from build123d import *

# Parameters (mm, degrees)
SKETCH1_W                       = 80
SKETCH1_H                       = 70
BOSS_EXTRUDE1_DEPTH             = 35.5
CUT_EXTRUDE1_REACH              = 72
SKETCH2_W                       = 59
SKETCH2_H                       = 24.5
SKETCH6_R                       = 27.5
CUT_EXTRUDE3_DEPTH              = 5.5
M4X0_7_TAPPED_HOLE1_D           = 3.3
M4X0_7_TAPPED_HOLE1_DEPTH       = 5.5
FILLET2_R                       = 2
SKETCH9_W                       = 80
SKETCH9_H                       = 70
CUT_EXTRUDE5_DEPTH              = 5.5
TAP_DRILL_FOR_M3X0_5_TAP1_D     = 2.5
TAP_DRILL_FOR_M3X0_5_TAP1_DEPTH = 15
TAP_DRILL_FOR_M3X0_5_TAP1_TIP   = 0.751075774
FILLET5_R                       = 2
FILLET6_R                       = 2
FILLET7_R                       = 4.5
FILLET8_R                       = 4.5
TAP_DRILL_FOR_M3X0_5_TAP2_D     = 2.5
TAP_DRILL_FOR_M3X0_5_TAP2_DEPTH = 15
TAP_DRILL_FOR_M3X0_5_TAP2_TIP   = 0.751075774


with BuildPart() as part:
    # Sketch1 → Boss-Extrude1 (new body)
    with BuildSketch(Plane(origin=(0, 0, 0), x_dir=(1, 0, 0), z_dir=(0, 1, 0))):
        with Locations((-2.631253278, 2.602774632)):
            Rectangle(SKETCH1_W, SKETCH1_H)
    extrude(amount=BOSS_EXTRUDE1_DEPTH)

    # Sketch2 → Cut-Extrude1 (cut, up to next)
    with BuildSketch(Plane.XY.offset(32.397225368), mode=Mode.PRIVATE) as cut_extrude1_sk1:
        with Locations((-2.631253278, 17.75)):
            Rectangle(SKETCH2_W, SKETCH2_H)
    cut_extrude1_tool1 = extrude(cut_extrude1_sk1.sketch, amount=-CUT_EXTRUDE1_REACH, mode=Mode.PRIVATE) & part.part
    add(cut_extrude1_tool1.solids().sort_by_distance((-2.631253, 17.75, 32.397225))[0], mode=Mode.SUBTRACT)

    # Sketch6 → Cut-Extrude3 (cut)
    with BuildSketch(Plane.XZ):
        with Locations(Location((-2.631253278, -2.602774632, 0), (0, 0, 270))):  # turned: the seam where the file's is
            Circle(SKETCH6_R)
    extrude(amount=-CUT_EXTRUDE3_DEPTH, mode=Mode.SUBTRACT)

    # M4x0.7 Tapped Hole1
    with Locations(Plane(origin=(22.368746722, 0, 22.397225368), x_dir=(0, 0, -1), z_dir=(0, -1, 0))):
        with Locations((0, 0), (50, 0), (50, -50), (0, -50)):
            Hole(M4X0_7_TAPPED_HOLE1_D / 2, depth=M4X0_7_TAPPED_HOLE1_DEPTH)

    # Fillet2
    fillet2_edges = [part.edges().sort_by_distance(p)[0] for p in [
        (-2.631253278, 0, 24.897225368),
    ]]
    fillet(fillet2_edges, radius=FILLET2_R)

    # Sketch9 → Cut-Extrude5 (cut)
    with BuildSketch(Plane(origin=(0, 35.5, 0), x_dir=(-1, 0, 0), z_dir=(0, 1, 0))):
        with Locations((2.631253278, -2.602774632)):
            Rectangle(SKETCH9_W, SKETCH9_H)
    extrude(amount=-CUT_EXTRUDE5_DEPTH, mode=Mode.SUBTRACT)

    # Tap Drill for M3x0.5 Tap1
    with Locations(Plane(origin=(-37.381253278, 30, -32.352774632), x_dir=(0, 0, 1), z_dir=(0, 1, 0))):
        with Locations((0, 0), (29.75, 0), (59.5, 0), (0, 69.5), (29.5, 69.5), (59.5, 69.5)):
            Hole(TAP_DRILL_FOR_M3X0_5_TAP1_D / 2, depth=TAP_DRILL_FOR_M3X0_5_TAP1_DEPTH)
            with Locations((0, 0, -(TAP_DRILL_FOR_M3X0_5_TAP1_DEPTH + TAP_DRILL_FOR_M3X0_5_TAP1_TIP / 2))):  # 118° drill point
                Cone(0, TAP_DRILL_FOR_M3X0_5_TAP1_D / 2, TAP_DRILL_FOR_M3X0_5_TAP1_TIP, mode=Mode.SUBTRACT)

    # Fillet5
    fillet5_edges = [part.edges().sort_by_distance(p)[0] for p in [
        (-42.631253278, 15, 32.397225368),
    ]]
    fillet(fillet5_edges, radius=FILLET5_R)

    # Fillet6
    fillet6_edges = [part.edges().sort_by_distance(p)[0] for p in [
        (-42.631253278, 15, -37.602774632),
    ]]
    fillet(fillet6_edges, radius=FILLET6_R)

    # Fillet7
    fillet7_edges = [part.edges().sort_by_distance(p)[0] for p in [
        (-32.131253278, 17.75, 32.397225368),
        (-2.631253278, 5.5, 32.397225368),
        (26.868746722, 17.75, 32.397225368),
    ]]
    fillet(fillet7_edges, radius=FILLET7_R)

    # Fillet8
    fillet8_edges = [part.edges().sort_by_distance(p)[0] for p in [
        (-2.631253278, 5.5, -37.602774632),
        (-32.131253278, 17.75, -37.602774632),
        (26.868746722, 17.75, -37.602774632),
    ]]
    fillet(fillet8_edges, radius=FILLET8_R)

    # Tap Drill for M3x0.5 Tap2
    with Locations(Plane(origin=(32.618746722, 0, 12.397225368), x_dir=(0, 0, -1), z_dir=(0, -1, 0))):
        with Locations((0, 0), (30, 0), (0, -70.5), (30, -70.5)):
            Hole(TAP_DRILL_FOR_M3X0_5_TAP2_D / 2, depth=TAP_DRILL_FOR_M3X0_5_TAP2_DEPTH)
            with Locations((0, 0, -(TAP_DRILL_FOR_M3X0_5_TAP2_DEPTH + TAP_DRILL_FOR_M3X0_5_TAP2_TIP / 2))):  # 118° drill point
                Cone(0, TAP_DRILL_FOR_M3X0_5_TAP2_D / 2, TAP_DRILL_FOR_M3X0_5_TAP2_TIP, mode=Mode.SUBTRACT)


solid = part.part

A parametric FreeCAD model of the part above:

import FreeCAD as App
import Part
import Sketcher
from FreeCAD import Vector
Q = App.Units.Quantity


def edges_at(feature, points):
    """Names of the edges that pass closest to the given points."""
    edges = feature.Shape.Edges
    near = lambda p: min(range(len(edges)), key=lambda i: edges[i].distToShape(Part.Vertex(*p))[0])
    return sorted({f"Edge{near(p) + 1}" for p in points})


def add_polygon(sketch, points):
    """Adds a closed chain of lines whose ends are joined by coincident constraints."""
    first, n = sketch.GeometryCount, len(points)
    for a, b in zip(points, points[1:] + points[:1]):
        sketch.addGeometry(Part.LineSegment(App.Vector(*a, 0), App.Vector(*b, 0)), False)
    for i in range(n):
        sketch.addConstraint(Sketcher.Constraint("Coincident", first + i, 2, first + (i + 1) % n, 1))

doc = App.newDocument("Part")
body = doc.addObject("PartDesign::Body", "Body")

# Sketch on XZ plane
sketch1 = body.newObject("Sketcher::SketchObject", "Sketch")
sketch1.AttachmentSupport = (doc.getObject("XZ_Plane"), [""])
sketch1.MapMode = "FlatFace"
add_polygon(sketch1, [(-43, -38), (-43, 32), (37, 32), (37, -38)])  # lines 0-3
sketch1.addConstraint([
    Sketcher.Constraint("Vertical", 0),
    Sketcher.Constraint("Horizontal", 1),
    Sketcher.Constraint("Vertical", 2),
    Sketcher.Constraint("Horizontal", 3),
    Sketcher.Constraint("DistanceX", 1, 1, 1, 2, Q("80 mm")),
    Sketcher.Constraint("DistanceY", 0, 1, 0, 2, Q("70 mm")),
    Sketcher.Constraint("DistanceX", 0, 2, -1, 1, Q("42.631253 mm")),
    Sketcher.Constraint("DistanceY", -1, 1, 0, 2, Q("32.397225 mm")),
])
pad1 = body.newObject("PartDesign::Pad", "Pad")
pad1.Profile = sketch1
pad1.Length = 35.5
pad1.Reversed = True

# Sketch on XY plane
sketch2 = body.newObject("Sketcher::SketchObject", "Sketch001")
sketch2.AttachmentSupport = (doc.getObject("XY_Plane"), [""])
sketch2.MapMode = "FlatFace"
sketch2.AttachmentOffset = App.Placement(Vector(0, 0, 32.397225), App.Rotation())
add_polygon(sketch2, [(-32, 30), (-32, 6), (27, 6), (27, 30)])  # lines 0-3
sketch2.addConstraint([
    Sketcher.Constraint("Vertical", 0),
    Sketcher.Constraint("Horizontal", 1),
    Sketcher.Constraint("Vertical", 2),
    Sketcher.Constraint("Horizontal", 3),
    Sketcher.Constraint("DistanceX", 1, 1, 1, 2, Q("59 mm")),
    Sketcher.Constraint("DistanceY", 0, 2, 0, 1, Q("24.5 mm")),
    Sketcher.Constraint("DistanceY", -1, 1, 2, 2, Q("30 mm")),
    Sketcher.Constraint("DistanceX", 0, 2, -1, 1, Q("32.131253 mm")),
])
pocket1 = body.newObject("PartDesign::Pocket", "Pocket")
pocket1.Profile = sketch2
pocket1.Type = "UpToFirst"

# Sketch on XZ plane
sketch3 = body.newObject("Sketcher::SketchObject", "Sketch002")
sketch3.AttachmentSupport = (doc.getObject("XZ_Plane"), [""])
sketch3.MapMode = "FlatFace"
sketch3.addGeometry(Part.Circle(Vector(-3, -3, 0), Vector(0, 0, 1), 28), False)
sketch3.addConstraint([
    Sketcher.Constraint("Diameter", 0, Q("55 mm")),
    Sketcher.Constraint("DistanceX", 0, 3, -1, 1, Q("2.631253 mm")),
    Sketcher.Constraint("DistanceY", 0, 3, -1, 1, Q("2.602775 mm")),
])
pocket2 = body.newObject("PartDesign::Pocket", "Pocket001")
pocket2.Profile = sketch3
pocket2.Length = 5.5

# Sketch on XZ plane
sketch4 = body.newObject("Sketcher::SketchObject", "Sketch003")
sketch4.AttachmentSupport = (doc.getObject("XZ_Plane"), [""])
sketch4.MapMode = "FlatFace"
sketch4.addGeometry([
    Part.Circle(Vector(22.4, 22.4, 0), Vector(0, 0, 1), 1.6),
    Part.Circle(Vector(22.4, -27.6, 0), Vector(0, 0, 1), 1.6),
    Part.Circle(Vector(-27.6, -27.6, 0), Vector(0, 0, 1), 1.6),
    Part.Circle(Vector(-27.6, 22.4, 0), Vector(0, 0, 1), 1.6),
], False)
sketch4.addConstraint([
    Sketcher.Constraint("Equal", 0, 1),
    Sketcher.Constraint("Equal", 1, 2),
    Sketcher.Constraint("Equal", 2, 3),
    Sketcher.Constraint("Horizontal", 1, 3, 2, 3),
    Sketcher.Constraint("Horizontal", 0, 3, 3, 3),
    Sketcher.Constraint("Vertical", 0, 3, 1, 3),
    Sketcher.Constraint("Vertical", 2, 3, 3, 3),
    Sketcher.Constraint("Diameter", 0, Q("3.3 mm")),
    Sketcher.Constraint("DistanceY", 1, 3, 0, 3, Q("50 mm")),
    Sketcher.Constraint("DistanceX", 2, 3, 1, 3, Q("50 mm")),
    Sketcher.Constraint("DistanceX", -1, 1, 0, 3, Q("22.368747 mm")),
    Sketcher.Constraint("DistanceY", -1, 1, 0, 3, Q("22.397225 mm")),
])
doc.recompute()
hole = body.newObject("PartDesign::Hole", "Hole")
hole.Profile = sketch4
hole.ThreadType = "None"
hole.Diameter = 3.3
hole.DepthType = "Dimension"
hole.Depth = 5.5
hole.DrillPoint = "Flat"
doc.recompute()

fillet = body.newObject("PartDesign::Fillet", "Fillet")
fillet.Base = (hole, edges_at(hole, [(-2.631, 0, 24.897)]))
fillet.Radius = 2

# Sketch on XZ plane
sketch5 = body.newObject("Sketcher::SketchObject", "Sketch004")
sketch5.AttachmentSupport = (doc.getObject("XZ_Plane"), [""])
sketch5.MapMode = "FlatFace"
sketch5.AttachmentOffset = App.Placement(Vector(0, 0, -35.5), App.Rotation())
add_polygon(sketch5, [(37, 32), (37, -38), (-43, -38), (-43, 32)])  # lines 0-3
sketch5.addConstraint([
    Sketcher.Constraint("Vertical", 0),
    Sketcher.Constraint("Horizontal", 1),
    Sketcher.Constraint("Vertical", 2),
    Sketcher.Constraint("Horizontal", 3),
    Sketcher.Constraint("DistanceX", 1, 2, 1, 1, Q("80 mm")),
    Sketcher.Constraint("DistanceY", 0, 2, 0, 1, Q("70 mm")),
    Sketcher.Constraint("DistanceX", -1, 1, 0, 2, Q("37.368747 mm")),
    Sketcher.Constraint("DistanceY", 0, 2, -1, 1, Q("37.602775 mm")),
])
pocket3 = body.newObject("PartDesign::Pocket", "Pocket002")
pocket3.Profile = sketch5
pocket3.Length = 5.5
pocket3.Reversed = True

# Sketch on XZ plane
sketch6 = body.newObject("Sketcher::SketchObject", "Sketch005")
sketch6.AttachmentSupport = (doc.getObject("XZ_Plane"), [""])
sketch6.MapMode = "FlatFace"
sketch6.AttachmentOffset = App.Placement(Vector(0, 0, -30), App.Rotation())
sketch6.addGeometry([
    Part.Circle(Vector(-37.4, -32.4, 0), Vector(0, 0, 1), 1.2),  # 0
    Part.Circle(Vector(-37.4, -2.6, 0), Vector(0, 0, 1), 1.2),  # 1
    Part.Circle(Vector(-37.4, 27.1, 0), Vector(0, 0, 1), 1.2),  # 2
    Part.Circle(Vector(32.1, -32.4, 0), Vector(0, 0, 1), 1.2),  # 3
    Part.Circle(Vector(32.1, -2.9, 0), Vector(0, 0, 1), 1.2),  # 4
    Part.Circle(Vector(32.1, 27.1, 0), Vector(0, 0, 1), 1.2),  # 5
], False)
sketch6.addConstraint([
    Sketcher.Constraint("Equal", 0, 1),
    Sketcher.Constraint("Equal", 1, 2),
    Sketcher.Constraint("Equal", 2, 3),
    Sketcher.Constraint("Equal", 3, 4),
    Sketcher.Constraint("Equal", 4, 5),
    Sketcher.Constraint("Horizontal", 0, 3, 3, 3),
    Sketcher.Constraint("Horizontal", 2, 3, 5, 3),
    Sketcher.Constraint("Vertical", 0, 3, 1, 3),
    Sketcher.Constraint("Vertical", 1, 3, 2, 3),
    Sketcher.Constraint("Vertical", 3, 3, 4, 3),
    Sketcher.Constraint("Vertical", 4, 3, 5, 3),
    Sketcher.Constraint("Diameter", 0, Q("2.5 mm")),
    Sketcher.Constraint("DistanceY", 4, 3, 2, 3, Q("30 mm")),
    Sketcher.Constraint("DistanceY", 0, 3, 2, 3, Q("59.5 mm")),
    Sketcher.Constraint("DistanceX", 0, 3, 3, 3, Q("69.5 mm")),
    Sketcher.Constraint("DistanceY", 0, 3, 1, 3, Q("29.75 mm")),
    Sketcher.Constraint("DistanceX", 0, 3, -1, 1, Q("37.381253 mm")),
    Sketcher.Constraint("DistanceY", 0, 3, -1, 1, Q("32.352775 mm")),
])
doc.recompute()
hole2 = body.newObject("PartDesign::Hole", "Hole001")
hole2.Profile = sketch6
hole2.ThreadType = "None"
hole2.Diameter = 2.5
hole2.DepthType = "Dimension"
hole2.Depth = 15
hole2.DrillPoint = "Angled"
hole2.DrillPointAngle = 118
hole2.Reversed = True
doc.recompute()

fillet2 = body.newObject("PartDesign::Fillet", "Fillet001")
fillet2.Base = (hole2, edges_at(hole2, [(-42.631, 15, 32.397)]))
fillet2.Radius = 2
doc.recompute()

fillet3 = body.newObject("PartDesign::Fillet", "Fillet002")
fillet3.Base = (fillet2, edges_at(fillet2, [(-42.631, 15, -37.603)]))
fillet3.Radius = 2
doc.recompute()

fillet4 = body.newObject("PartDesign::Fillet", "Fillet003")
fillet4.Base = (fillet3, edges_at(fillet3, [(-32.131, 17.75, 32.397), (-2.631, 5.5, 32.397), (26.869, 17.75, 32.397)]))
fillet4.Radius = 4.5
doc.recompute()

fillet5 = body.newObject("PartDesign::Fillet", "Fillet004")
fillet5.Base = (fillet4, edges_at(fillet4, [(-2.631, 5.5, -37.603), (-32.131, 17.75, -37.603), (26.869, 17.75, -37.603)]))
fillet5.Radius = 4.5

# Sketch on XZ plane
sketch7 = body.newObject("Sketcher::SketchObject", "Sketch006")
sketch7.AttachmentSupport = (doc.getObject("XZ_Plane"), [""])
sketch7.MapMode = "FlatFace"
sketch7.addGeometry([
    Part.Circle(Vector(32.6, 12.4, 0), Vector(0, 0, 1), 1.2),
    Part.Circle(Vector(32.6, -17.6, 0), Vector(0, 0, 1), 1.2),
    Part.Circle(Vector(-37.9, 12.4, 0), Vector(0, 0, 1), 1.2),
    Part.Circle(Vector(-37.9, -17.6, 0), Vector(0, 0, 1), 1.2),
], False)
sketch7.addConstraint([
    Sketcher.Constraint("Equal", 0, 1),
    Sketcher.Constraint("Equal", 1, 2),
    Sketcher.Constraint("Equal", 2, 3),
    Sketcher.Constraint("Horizontal", 0, 3, 2, 3),
    Sketcher.Constraint("Horizontal", 1, 3, 3, 3),
    Sketcher.Constraint("Vertical", 0, 3, 1, 3),
    Sketcher.Constraint("Vertical", 2, 3, 3, 3),
    Sketcher.Constraint("Diameter", 0, Q("2.5 mm")),
    Sketcher.Constraint("DistanceY", 1, 3, 0, 3, Q("30 mm")),
    Sketcher.Constraint("DistanceX", 2, 3, 0, 3, Q("70.5 mm")),
    Sketcher.Constraint("DistanceX", -1, 1, 0, 3, Q("32.618747 mm")),
    Sketcher.Constraint("DistanceY", -1, 1, 0, 3, Q("12.397225 mm")),
])
doc.recompute()
hole3 = body.newObject("PartDesign::Hole", "Hole002")
hole3.Profile = sketch7
hole3.ThreadType = "None"
hole3.Diameter = 2.5
hole3.DepthType = "Dimension"
hole3.Depth = 15
hole3.DrillPoint = "Angled"
hole3.DrillPointAngle = 118

doc.recompute()
